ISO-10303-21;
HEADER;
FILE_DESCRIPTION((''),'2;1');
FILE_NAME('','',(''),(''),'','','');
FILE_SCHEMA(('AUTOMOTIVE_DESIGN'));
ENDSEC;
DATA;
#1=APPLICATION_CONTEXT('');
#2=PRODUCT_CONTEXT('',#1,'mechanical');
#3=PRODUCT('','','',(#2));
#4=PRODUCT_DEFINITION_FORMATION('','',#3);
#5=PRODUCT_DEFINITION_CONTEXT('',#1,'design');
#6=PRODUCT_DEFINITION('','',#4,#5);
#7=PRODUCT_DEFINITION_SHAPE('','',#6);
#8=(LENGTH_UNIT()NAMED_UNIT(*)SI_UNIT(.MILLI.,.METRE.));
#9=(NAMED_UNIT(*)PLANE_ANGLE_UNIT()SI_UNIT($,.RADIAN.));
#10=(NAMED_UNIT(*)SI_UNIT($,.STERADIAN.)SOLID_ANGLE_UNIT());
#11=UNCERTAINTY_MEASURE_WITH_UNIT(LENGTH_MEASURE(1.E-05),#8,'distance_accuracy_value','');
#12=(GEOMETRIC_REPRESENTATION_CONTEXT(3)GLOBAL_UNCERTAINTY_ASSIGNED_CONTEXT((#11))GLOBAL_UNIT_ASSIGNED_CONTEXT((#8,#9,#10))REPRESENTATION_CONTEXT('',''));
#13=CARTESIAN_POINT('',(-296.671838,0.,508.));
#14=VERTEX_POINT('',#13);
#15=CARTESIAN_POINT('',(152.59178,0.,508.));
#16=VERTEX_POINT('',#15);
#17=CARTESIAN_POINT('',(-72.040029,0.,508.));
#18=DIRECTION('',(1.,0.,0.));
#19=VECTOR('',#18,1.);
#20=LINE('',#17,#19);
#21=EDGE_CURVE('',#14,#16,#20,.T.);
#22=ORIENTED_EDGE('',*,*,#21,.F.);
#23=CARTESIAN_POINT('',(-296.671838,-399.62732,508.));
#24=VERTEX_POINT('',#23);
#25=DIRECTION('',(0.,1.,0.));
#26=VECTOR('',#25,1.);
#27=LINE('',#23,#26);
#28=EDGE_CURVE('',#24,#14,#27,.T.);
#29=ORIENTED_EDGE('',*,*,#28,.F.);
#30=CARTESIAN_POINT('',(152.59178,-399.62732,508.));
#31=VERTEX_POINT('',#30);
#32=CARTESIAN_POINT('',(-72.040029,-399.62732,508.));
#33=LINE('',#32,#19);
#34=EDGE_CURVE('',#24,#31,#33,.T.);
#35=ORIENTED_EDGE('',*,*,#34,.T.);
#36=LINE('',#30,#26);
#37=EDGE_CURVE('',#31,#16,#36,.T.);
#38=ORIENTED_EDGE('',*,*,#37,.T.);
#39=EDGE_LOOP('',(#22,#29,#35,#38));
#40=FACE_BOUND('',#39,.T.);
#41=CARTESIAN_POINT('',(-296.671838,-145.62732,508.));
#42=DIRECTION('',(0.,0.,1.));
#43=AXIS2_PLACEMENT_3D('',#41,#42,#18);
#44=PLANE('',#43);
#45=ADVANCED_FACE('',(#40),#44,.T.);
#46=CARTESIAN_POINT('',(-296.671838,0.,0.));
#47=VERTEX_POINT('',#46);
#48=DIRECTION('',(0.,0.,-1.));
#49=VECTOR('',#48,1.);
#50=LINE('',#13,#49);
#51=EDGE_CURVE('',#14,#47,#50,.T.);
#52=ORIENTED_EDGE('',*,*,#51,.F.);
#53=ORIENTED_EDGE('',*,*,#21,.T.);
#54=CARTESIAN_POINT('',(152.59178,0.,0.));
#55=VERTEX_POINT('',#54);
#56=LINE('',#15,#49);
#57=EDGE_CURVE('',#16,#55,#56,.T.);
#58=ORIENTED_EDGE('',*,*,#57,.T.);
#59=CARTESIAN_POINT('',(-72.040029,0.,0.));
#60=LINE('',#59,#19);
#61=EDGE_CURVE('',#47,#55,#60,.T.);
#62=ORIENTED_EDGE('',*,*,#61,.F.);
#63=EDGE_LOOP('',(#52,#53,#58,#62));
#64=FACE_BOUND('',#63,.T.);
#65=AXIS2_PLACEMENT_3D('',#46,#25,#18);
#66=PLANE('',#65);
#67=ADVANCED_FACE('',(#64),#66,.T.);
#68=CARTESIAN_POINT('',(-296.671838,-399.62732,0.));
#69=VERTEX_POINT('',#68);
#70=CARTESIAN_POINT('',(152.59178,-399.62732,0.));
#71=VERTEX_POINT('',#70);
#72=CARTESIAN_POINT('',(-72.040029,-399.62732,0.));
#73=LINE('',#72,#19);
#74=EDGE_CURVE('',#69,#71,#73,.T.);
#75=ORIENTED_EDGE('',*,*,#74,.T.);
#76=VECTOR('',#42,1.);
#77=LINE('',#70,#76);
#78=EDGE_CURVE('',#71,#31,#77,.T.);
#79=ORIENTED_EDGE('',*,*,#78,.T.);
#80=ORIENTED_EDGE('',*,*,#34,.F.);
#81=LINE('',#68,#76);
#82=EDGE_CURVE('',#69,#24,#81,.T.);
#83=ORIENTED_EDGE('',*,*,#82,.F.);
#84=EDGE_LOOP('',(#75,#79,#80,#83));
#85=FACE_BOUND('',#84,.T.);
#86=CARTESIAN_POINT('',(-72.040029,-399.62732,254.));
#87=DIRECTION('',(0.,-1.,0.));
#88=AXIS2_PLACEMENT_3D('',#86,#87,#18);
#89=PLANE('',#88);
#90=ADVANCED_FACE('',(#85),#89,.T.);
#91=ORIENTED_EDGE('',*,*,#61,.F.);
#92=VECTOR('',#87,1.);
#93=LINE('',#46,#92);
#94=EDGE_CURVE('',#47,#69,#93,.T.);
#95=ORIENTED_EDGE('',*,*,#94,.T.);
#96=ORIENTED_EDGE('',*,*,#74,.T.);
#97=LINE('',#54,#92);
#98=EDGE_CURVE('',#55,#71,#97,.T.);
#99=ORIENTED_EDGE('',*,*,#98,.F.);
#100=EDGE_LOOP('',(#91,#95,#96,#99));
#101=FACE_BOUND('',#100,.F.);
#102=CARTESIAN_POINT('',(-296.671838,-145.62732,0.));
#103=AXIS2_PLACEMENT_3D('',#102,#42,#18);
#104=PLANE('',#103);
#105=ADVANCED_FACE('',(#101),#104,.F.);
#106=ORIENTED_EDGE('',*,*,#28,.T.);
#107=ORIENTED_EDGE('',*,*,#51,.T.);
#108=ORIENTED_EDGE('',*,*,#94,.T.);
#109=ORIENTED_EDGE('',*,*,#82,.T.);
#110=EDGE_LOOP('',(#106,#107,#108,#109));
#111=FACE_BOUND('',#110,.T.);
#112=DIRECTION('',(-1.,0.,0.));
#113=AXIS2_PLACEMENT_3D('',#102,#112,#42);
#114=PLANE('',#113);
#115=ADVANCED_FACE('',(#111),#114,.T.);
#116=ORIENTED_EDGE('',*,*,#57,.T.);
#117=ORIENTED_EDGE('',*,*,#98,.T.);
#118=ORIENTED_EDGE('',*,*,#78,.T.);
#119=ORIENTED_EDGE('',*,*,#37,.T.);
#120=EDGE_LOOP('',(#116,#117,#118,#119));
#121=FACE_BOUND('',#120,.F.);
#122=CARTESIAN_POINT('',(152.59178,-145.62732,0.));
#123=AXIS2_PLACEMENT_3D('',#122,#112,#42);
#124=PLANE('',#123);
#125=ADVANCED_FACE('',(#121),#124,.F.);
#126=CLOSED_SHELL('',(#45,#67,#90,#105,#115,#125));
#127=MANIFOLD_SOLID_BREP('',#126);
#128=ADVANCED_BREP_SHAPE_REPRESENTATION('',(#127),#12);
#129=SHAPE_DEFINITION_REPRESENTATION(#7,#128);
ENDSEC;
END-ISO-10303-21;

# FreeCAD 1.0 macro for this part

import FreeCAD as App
import Part
import Sketcher
from FreeCAD import Vector
Q = App.Units.Quantity

doc = App.newDocument("Part")
body = doc.addObject("PartDesign::Body", "Body")

sketch1 = body.newObject("Sketcher::SketchObject", "Sketch")
sketch1.AttachmentSupport = (doc.getObject("XY_Plane"), [""])
sketch1.MapMode = "FlatFace"
sketch1.addGeometry([
    Part.LineSegment(Vector(-297, 0, 0), Vector(-297, -146, 0)),
    Part.LineSegment(Vector(-297, -146, 0), Vector(153, -146, 0)),
    Part.LineSegment(Vector(153, -146, 0), Vector(153, 0, 0)),
    Part.LineSegment(Vector(153, 0, 0), Vector(-297, 0, 0)),
], False)
sketch1.addConstraint([
    Sketcher.Constraint("Coincident", 0, 2, 1, 1),
    Sketcher.Constraint("Coincident", 1, 2, 2, 1),
    Sketcher.Constraint("Coincident", 2, 2, 3, 1),
    Sketcher.Constraint("Coincident", 3, 2, 0, 1),
    Sketcher.Constraint("Vertical", 0),
    Sketcher.Constraint("Horizontal", 1),
    Sketcher.Constraint("Vertical", 2),
    Sketcher.Constraint("Horizontal", 3),
    Sketcher.Constraint("PointOnObject", 2, 2, -1),
    Sketcher.Constraint("DistanceY", 0, 2, 0, 1, Q("145.62732 mm")),
    Sketcher.Constraint("DistanceX", 1, 1, 1, 2, Q("449.263618 mm")),
    Sketcher.Constraint("DistanceX", 0, 2, -1, 1, Q("296.671838 mm")),
])
pad1 = body.newObject("PartDesign::Pad", "Pad")
pad1.Profile = sketch1
pad1.Length = Q("20 in")

sketch2 = body.newObject("Sketcher::SketchObject", "Sketch001")
sketch2.AttachmentSupport = (doc.getObject("XZ_Plane"), [""])
sketch2.MapMode = "FlatFace"
sketch2.AttachmentOffset = App.Placement(Vector(0, 0, 145.62732), App.Rotation())
sketch2.addGeometry([
    Part.LineSegment(Vector(-297, 508, 0), Vector(-297, 0, 0)),
    Part.LineSegment(Vector(-297, 0, 0), Vector(153, 0, 0)),
    Part.LineSegment(Vector(153, 0, 0), Vector(153, 508, 0)),
    Part.LineSegment(Vector(153, 508, 0), Vector(-297, 508, 0)),
], False)
sketch2.addConstraint([
    Sketcher.Constraint("Coincident", 0, 2, 1, 1),
    Sketcher.Constraint("Coincident", 1, 2, 2, 1),
    Sketcher.Constraint("Coincident", 2, 2, 3, 1),
    Sketcher.Constraint("Coincident", 3, 2, 0, 1),
    Sketcher.Constraint("Vertical", 0),
    Sketcher.Constraint("Horizontal", 1),
    Sketcher.Constraint("Vertical", 2),
    Sketcher.Constraint("Horizontal", 3),
    Sketcher.Constraint("PointOnObject", 0, 2, -1),
    Sketcher.Constraint("DistanceY", 0, 2, 0, 1, Q("20 in")),
    Sketcher.Constraint("DistanceX", 1, 1, 1, 2, Q("449.263618 mm")),
    Sketcher.Constraint("DistanceX", 0, 2, -1, 1, Q("296.671838 mm")),
])
pad2 = body.newObject("PartDesign::Pad", "Pad001")
pad2.Profile = sketch2
pad2.Length = Q("10 in")

sketch3 = body.newObject("Sketcher::SketchObject", "Sketch002")
sketch3.AttachmentSupport = (doc.getObject("XY_Plane"), [""])
sketch3.MapMode = "FlatFace"
sketch3.addGeometry([
    Part.LineSegment(Vector(-297, -400, 0), Vector(-297, 0, 0)),
    Part.LineSegment(Vector(-297, 0, 0), Vector(153, 0, 0)),
    Part.LineSegment(Vector(153, 0, 0), Vector(153, -400, 0)),
    Part.LineSegment(Vector(153, -400, 0), Vector(-297, -400, 0)),
], False)
sketch3.addConstraint([
    Sketcher.Constraint("Coincident", 0, 2, 1, 1),
    Sketcher.Constraint("Coincident", 1, 2, 2, 1),
    Sketcher.Constraint("Coincident", 2, 2, 3, 1),
    Sketcher.Constraint("Coincident", 3, 2, 0, 1),
    Sketcher.Constraint("Vertical", 0),
    Sketcher.Constraint("Horizontal", 1),
    Sketcher.Constraint("Vertical", 2),
    Sketcher.Constraint("Horizontal", 3),
    Sketcher.Constraint("PointOnObject", 0, 2, -1),
    Sketcher.Constraint("DistanceY", 0, 1, 0, 2, Q("399.62732 mm")),
    Sketcher.Constraint("DistanceX", 1, 1, 1, 2, Q("449.263618 mm")),
    Sketcher.Constraint("DistanceX", 0, 2, -1, 1, Q("296.671838 mm")),
])
pad3 = body.newObject("PartDesign::Pad", "Pad002")
pad3.Profile = sketch3
pad3.Length = Q("5 in")

sketch4 = body.newObject("Sketcher::SketchObject", "Sketch003")
sketch4.AttachmentSupport = (doc.getObject("XY_Plane"), [""])
sketch4.MapMode = "FlatFace"
sketch4.addGeometry([
    Part.LineSegment(Vector(-297, -400, 0), Vector(-297, 0, 0)),
    Part.LineSegment(Vector(-297, 0, 0), Vector(153, 0, 0)),
    Part.LineSegment(Vector(153, 0, 0), Vector(153, -400, 0)),
    Part.LineSegment(Vector(153, -400, 0), Vector(-297, -400, 0)),
], False)
sketch4.addConstraint([
    Sketcher.Constraint("Coincident", 0, 2, 1, 1),
    Sketcher.Constraint("Coincident", 1, 2, 2, 1),
    Sketcher.Constraint("Coincident", 2, 2, 3, 1),
    Sketcher.Constraint("Coincident", 3, 2, 0, 1),
    Sketcher.Constraint("Vertical", 0),
    Sketcher.Constraint("Horizontal", 1),
    Sketcher.Constraint("Vertical", 2),
    Sketcher.Constraint("Horizontal", 3),
    Sketcher.Constraint("PointOnObject", 0, 2, -1),
    Sketcher.Constraint("DistanceY", 0, 1, 0, 2, Q("399.62732 mm")),
    Sketcher.Constraint("DistanceX", 1, 1, 1, 2, Q("449.263618 mm")),
    Sketcher.Constraint("DistanceX", 0, 2, -1, 1, Q("296.671838 mm")),
])
pad4 = body.newObject("PartDesign::Pad", "Pad003")
pad4.Profile = sketch4
pad4.Length = Q("5 in")

doc.recompute()
